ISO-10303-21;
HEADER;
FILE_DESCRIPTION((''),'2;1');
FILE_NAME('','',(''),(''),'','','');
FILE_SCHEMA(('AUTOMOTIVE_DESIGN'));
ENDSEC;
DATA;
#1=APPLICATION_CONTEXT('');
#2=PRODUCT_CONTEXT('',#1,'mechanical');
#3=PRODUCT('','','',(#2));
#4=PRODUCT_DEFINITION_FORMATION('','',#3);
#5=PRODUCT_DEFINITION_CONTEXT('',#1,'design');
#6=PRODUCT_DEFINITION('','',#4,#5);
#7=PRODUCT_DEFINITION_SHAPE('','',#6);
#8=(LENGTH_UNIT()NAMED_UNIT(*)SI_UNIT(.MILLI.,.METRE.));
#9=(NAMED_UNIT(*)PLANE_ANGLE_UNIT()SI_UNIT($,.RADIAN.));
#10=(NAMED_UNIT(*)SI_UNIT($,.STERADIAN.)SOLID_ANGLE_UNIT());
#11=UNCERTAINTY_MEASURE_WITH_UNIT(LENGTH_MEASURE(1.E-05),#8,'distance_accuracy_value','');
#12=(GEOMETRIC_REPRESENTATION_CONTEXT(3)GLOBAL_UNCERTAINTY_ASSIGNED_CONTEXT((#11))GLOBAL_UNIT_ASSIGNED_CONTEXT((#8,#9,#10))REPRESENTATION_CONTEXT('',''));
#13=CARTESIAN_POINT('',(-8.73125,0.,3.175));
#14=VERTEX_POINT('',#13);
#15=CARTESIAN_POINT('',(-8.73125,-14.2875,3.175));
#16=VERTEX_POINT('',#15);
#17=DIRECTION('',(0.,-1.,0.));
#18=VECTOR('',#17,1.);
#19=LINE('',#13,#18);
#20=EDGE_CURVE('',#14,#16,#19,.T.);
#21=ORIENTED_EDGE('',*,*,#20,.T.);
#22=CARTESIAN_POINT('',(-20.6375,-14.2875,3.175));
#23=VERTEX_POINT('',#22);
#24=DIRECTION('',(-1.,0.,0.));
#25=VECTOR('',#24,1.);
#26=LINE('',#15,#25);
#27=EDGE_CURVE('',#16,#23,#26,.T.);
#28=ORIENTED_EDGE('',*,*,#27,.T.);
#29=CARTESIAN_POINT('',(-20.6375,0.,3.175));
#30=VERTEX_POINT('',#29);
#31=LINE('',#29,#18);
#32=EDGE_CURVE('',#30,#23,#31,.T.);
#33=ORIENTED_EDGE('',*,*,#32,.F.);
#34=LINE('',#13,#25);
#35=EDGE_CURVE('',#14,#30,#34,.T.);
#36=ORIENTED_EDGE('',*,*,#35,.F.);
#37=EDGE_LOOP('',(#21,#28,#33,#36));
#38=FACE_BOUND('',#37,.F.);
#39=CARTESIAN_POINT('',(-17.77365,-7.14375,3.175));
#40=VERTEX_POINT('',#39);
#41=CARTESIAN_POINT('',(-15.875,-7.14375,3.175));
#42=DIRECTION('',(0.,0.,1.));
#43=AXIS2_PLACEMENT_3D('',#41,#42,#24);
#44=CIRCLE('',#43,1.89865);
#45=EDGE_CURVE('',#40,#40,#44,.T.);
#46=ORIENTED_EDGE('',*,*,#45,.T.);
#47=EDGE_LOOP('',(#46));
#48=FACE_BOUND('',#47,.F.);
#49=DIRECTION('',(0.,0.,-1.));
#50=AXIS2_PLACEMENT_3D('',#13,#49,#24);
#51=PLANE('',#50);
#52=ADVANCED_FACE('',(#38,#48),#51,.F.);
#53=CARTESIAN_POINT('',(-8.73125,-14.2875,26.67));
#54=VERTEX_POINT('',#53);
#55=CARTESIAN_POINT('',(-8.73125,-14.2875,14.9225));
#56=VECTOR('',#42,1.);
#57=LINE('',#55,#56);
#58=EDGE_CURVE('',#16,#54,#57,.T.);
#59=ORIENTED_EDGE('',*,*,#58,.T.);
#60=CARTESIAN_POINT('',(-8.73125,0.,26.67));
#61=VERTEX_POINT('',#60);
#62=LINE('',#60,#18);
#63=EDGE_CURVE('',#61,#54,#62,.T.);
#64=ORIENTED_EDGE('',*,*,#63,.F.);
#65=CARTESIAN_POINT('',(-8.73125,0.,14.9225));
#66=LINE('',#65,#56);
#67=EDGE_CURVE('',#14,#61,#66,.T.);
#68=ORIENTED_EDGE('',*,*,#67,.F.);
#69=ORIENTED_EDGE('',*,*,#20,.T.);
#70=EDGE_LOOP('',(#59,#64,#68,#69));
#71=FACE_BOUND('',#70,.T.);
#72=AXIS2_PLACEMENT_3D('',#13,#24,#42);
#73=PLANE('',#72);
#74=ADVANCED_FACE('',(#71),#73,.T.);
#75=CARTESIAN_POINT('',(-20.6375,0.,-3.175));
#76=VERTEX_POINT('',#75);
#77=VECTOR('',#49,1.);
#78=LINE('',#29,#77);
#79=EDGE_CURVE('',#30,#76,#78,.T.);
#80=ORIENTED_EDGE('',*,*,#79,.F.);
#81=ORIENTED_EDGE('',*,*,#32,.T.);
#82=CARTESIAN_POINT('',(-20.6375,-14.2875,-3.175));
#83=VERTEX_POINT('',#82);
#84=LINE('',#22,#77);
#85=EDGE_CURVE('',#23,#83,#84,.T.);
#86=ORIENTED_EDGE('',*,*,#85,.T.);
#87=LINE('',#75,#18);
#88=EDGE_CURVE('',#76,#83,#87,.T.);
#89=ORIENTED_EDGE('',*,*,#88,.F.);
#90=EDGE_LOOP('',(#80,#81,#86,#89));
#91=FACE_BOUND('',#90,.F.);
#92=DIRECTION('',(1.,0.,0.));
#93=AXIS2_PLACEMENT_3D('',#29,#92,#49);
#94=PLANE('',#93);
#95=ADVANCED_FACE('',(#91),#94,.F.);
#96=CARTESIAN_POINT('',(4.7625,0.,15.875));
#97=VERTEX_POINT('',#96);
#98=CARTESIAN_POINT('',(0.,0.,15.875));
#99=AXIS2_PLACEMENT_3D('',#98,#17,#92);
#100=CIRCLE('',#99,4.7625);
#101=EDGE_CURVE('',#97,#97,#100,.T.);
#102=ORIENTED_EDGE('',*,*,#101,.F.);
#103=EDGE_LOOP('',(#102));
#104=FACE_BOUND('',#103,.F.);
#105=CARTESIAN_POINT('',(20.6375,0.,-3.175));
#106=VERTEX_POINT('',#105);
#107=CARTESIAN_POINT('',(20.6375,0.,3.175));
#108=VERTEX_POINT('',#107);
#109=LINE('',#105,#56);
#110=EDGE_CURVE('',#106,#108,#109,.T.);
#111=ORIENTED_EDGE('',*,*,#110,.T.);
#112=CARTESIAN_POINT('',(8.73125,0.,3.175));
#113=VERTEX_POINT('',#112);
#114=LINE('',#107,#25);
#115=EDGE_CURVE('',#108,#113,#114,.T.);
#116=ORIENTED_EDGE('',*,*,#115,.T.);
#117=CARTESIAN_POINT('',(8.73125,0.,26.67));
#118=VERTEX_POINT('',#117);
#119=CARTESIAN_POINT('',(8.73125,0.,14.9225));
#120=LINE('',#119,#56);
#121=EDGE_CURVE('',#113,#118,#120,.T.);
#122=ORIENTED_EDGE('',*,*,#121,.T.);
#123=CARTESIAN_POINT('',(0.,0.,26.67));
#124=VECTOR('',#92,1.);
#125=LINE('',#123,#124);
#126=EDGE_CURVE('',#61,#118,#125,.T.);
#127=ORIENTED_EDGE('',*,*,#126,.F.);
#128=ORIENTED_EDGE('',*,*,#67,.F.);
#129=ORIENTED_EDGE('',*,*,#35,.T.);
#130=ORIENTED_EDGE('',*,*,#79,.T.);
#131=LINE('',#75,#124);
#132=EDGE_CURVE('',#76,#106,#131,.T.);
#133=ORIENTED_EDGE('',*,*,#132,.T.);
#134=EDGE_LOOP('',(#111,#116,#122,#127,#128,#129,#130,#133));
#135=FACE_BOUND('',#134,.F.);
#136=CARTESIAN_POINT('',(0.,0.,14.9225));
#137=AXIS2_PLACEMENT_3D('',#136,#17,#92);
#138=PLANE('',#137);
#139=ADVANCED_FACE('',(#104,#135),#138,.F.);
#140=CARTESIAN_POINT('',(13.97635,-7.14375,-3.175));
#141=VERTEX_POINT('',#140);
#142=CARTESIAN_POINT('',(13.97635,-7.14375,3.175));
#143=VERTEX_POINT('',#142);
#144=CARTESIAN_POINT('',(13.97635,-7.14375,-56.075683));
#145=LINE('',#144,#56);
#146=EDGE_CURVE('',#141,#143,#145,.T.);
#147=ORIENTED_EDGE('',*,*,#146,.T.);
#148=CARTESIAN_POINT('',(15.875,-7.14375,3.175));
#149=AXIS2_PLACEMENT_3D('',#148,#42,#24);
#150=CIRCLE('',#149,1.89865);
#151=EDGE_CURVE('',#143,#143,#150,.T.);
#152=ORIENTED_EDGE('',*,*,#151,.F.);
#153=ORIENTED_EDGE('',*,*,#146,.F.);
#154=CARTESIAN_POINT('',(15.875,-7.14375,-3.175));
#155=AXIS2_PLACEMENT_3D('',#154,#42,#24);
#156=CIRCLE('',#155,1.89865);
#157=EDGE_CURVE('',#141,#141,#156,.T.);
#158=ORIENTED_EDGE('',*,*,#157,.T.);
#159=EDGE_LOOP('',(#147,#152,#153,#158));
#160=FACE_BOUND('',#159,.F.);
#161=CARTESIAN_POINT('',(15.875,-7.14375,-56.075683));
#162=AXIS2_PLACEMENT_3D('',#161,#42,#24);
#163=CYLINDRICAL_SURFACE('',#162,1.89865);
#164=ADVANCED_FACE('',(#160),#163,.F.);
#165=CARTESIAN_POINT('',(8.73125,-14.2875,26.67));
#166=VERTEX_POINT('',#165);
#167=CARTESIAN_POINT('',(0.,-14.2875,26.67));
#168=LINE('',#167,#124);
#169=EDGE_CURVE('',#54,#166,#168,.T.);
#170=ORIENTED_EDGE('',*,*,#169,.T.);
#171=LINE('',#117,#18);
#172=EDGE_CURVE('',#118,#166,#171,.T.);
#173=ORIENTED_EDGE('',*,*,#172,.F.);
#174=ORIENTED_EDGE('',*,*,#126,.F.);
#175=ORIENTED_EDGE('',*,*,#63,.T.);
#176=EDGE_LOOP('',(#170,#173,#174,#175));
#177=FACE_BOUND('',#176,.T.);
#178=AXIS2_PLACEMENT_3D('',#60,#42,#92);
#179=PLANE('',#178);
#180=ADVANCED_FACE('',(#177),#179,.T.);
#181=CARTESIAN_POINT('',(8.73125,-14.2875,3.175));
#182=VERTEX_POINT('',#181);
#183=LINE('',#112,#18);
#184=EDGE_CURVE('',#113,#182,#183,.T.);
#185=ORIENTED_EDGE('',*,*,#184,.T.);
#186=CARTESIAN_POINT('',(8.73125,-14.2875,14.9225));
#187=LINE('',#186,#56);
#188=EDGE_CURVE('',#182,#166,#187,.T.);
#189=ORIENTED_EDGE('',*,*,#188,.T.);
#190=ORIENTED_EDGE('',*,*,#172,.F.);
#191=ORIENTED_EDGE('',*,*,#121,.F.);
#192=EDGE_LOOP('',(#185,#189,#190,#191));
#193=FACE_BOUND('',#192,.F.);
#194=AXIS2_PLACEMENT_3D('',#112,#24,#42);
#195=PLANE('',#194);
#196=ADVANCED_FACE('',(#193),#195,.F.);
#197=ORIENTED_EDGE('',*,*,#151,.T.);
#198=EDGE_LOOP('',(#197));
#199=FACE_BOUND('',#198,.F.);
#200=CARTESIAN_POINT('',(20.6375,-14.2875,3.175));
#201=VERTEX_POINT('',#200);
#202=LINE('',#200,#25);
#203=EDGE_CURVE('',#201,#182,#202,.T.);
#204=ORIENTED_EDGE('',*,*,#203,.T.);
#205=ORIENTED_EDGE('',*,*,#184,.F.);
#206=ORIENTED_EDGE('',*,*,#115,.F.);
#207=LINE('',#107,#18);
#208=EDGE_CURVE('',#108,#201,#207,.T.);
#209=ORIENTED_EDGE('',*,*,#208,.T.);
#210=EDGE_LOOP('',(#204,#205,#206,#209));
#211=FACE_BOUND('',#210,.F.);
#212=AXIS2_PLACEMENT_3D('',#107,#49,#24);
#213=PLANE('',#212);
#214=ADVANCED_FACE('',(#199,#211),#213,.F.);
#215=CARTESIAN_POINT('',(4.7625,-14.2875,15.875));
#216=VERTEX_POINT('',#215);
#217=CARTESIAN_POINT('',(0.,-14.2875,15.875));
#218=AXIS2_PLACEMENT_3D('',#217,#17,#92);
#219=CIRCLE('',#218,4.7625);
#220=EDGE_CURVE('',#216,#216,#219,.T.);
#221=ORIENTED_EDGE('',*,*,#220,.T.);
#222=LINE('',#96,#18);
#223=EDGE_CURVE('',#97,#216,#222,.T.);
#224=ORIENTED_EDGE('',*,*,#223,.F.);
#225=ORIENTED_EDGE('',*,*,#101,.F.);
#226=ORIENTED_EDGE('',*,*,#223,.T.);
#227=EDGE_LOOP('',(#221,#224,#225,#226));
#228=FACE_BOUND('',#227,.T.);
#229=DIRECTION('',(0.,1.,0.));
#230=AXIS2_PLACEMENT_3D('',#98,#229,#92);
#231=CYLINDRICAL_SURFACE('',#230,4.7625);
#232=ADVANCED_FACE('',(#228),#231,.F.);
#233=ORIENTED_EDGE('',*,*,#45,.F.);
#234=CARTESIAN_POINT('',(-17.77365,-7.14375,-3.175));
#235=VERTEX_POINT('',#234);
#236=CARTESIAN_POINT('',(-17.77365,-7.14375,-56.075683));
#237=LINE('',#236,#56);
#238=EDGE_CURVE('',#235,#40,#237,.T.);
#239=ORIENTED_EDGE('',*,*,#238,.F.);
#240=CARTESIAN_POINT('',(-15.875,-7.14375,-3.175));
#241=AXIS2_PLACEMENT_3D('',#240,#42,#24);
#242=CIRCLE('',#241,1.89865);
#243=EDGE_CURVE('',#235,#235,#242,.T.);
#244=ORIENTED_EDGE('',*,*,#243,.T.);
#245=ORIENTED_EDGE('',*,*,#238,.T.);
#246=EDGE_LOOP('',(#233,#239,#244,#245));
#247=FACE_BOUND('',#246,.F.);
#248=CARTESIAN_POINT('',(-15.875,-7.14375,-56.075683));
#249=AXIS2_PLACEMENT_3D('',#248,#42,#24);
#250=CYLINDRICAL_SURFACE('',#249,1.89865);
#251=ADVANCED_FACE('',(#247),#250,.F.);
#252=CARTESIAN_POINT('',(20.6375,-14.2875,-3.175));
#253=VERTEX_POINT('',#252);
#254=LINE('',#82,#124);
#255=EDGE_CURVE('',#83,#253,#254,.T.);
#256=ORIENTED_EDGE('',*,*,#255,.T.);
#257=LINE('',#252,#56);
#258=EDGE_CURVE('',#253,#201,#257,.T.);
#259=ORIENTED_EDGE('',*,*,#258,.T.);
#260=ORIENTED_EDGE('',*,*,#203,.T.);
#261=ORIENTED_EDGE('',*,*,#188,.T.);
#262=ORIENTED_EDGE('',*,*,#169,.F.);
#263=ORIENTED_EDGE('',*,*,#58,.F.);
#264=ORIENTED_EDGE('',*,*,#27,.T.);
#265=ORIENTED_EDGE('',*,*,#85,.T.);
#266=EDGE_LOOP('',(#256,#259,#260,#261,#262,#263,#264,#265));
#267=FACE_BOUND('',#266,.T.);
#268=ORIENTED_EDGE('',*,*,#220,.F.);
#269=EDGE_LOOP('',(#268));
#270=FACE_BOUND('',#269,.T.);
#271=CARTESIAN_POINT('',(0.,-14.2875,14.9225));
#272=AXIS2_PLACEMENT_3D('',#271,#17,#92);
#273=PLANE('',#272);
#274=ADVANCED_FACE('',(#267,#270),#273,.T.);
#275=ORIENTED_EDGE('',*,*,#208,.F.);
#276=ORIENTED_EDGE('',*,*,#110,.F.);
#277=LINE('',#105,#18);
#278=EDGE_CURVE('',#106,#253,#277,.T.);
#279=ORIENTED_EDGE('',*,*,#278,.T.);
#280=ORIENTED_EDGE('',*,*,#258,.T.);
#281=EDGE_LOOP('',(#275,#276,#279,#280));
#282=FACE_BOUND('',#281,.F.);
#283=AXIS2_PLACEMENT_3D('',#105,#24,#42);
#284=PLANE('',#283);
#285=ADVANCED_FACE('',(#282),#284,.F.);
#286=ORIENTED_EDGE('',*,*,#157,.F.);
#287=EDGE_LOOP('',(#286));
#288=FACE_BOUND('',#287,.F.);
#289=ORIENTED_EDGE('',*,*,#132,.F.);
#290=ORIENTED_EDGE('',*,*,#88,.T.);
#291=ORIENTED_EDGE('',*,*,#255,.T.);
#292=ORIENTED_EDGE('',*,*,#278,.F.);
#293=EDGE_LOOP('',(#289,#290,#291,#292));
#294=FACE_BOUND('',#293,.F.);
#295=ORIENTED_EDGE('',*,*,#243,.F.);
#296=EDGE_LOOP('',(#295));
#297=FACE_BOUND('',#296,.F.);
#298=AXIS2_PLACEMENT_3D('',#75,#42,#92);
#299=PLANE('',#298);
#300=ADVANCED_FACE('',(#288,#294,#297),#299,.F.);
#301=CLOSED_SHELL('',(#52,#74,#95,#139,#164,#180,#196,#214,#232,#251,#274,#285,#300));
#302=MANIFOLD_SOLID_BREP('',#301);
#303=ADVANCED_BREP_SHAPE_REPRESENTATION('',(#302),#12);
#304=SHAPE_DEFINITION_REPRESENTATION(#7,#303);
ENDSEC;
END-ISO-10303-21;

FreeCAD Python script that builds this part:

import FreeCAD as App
import Part
import Sketcher
from FreeCAD import Vector
Q = App.Units.Quantity


def add_polygon(sketch, points):
    """Adds a closed chain of lines whose ends are joined by coincident constraints."""
    first, n = sketch.GeometryCount, len(points)
    for a, b in zip(points, points[1:] + points[:1]):
        sketch.addGeometry(Part.LineSegment(App.Vector(*a, 0), App.Vector(*b, 0)), False)
    for i in range(n):
        sketch.addConstraint(Sketcher.Constraint("Coincident", first + i, 2, first + (i + 1) % n, 1))

doc = App.newDocument("Part")
body = doc.addObject("PartDesign::Body", "Body")

# Sketch on XZ plane
sketch1 = body.newObject("Sketcher::SketchObject", "Sketch")
sketch1.AttachmentSupport = (doc.getObject("XZ_Plane"), [""])
sketch1.MapMode = "FlatFace"
add_polygon(sketch1, [(-8.7, 26.7), (-8.7, 3.2), (-20.6, 3.2), (-20.6, -3.2), (20.6, -3.2), (20.6, 3.2), (8.7, 3.2), (8.7, 26.7)])  # lines 0-7
sketch1.addGeometry(Part.Circle(Vector(0, 15.9, 0), Vector(0, 0, 1), 4.8), False)  # 8
sketch1.addConstraint([
    Sketcher.Constraint("Vertical", 0),
    Sketcher.Constraint("Horizontal", 1),
    Sketcher.Constraint("Vertical", 2),
    Sketcher.Constraint("Horizontal", 3),
    Sketcher.Constraint("Vertical", 4),
    Sketcher.Constraint("Horizontal", 5),
    Sketcher.Constraint("Vertical", 6),
    Sketcher.Constraint("Horizontal", 7),
    Sketcher.Constraint("Symmetric", 1, 2, 3, 2, -1, 1),
    Sketcher.Constraint("Symmetric", 0, 2, 5, 2, -2),
    Sketcher.Constraint("PointOnObject", 8, 3, -2),
    Sketcher.Constraint("Diameter", 8, Q("0.375 in")),
    Sketcher.Constraint("DistanceY", 2, 2, 2, 1, Q("0.25 in")),
    Sketcher.Constraint("DistanceY", 0, 2, 8, 3, Q("0.5 in")),
    Sketcher.Constraint("DistanceX", 1, 2, 1, 1, Q("0.46875 in")),
    Sketcher.Constraint("DistanceX", 3, 1, 3, 2, Q("1.625 in")),
    Sketcher.Constraint("DistanceY", 0, 2, 0, 1, Q("0.925 in")),
])
pad1 = body.newObject("PartDesign::Pad", "Pad")
pad1.Profile = sketch1
pad1.Length = Q("0.5625 in")

# Sketch on XY plane
sketch2 = body.newObject("Sketcher::SketchObject", "Sketch001")
sketch2.AttachmentSupport = (doc.getObject("XY_Plane"), [""])
sketch2.MapMode = "FlatFace"
sketch2.AttachmentOffset = App.Placement(Vector(0, 0, -0.125 * 25.4), App.Rotation())
sketch2.addGeometry([
    Part.Circle(Vector(-15.9, -7.1, 0), Vector(0, 0, 1), 1.9),
    Part.Circle(Vector(15.9, -7.1, 0), Vector(0, 0, 1), 1.9),
], False)
sketch2.addConstraint([
    Sketcher.Constraint("Equal", 0, 1),
    Sketcher.Constraint("Symmetric", 0, 3, 1, 3, -2),
    Sketcher.Constraint("Diameter", 0, Q("0.1495 in")),
    Sketcher.Constraint("DistanceX", 0, 3, 1, 3, Q("1.25 in")),
    Sketcher.Constraint("DistanceY", 0, 3, -1, 1, Q("0.28125 in")),
])
doc.recompute()
hole = body.newObject("PartDesign::Hole", "Hole")
hole.Profile = sketch2
hole.ThreadType = "None"
hole.Diameter = Q("0.1495 in")
hole.DepthType = "ThroughAll"
hole.Reversed = True

doc.recompute()
